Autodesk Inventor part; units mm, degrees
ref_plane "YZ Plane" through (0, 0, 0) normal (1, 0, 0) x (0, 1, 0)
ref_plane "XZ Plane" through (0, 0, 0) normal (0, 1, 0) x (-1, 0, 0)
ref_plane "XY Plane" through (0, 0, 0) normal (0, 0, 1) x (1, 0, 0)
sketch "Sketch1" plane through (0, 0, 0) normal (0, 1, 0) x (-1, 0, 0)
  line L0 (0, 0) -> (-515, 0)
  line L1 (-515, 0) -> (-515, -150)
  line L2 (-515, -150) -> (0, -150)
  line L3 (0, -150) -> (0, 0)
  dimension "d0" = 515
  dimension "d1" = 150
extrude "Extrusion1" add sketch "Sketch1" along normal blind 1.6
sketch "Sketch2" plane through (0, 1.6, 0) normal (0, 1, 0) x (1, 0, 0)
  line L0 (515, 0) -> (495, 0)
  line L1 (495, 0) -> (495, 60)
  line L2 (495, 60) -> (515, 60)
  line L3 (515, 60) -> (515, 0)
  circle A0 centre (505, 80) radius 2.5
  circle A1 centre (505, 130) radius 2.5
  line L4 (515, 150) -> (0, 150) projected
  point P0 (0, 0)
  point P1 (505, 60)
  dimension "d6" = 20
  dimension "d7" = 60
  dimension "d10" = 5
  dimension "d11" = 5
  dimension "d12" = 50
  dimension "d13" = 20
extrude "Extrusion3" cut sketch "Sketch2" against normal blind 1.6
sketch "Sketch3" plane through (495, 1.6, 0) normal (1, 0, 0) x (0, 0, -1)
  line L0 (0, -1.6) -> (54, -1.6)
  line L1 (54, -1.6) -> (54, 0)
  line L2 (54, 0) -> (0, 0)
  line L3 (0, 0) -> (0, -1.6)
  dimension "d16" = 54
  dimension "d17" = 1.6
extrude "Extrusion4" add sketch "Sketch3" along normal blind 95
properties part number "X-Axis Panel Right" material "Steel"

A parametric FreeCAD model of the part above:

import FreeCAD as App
import Part
import Sketcher

V = App.Vector
Q = App.Units.Quantity


def add_polygon(sketch, points):
    """Adds a closed chain of lines whose ends are joined by coincident constraints."""
    first, n = sketch.GeometryCount, len(points)
    for a, b in zip(points, points[1:] + points[:1]):
        sketch.addGeometry(Part.LineSegment(App.Vector(*a, 0), App.Vector(*b, 0)), False)
    for i in range(n):
        sketch.addConstraint(Sketcher.Constraint("Coincident", first + i, 2, first + (i + 1) % n, 1))

doc = App.newDocument("Part")
params = doc.addObject("Spreadsheet::Sheet", "Params")
for row, (alias, value) in enumerate([
    ("sketch1_width", "515 mm"),
    ("sketch1_height", "150 mm"),
    ("pad1_length", "1.6 mm"),
    ("sketch2_diameter", "5 mm"),
    ("sketch2_width", "20 mm"),
    ("sketch2_height", "60 mm"),
    ("pocket1_length", "1.6 mm"),
    ("sketch3_height", "54 mm"),
    ("sketch3_width", "1.6 mm"),
    ("pad2_length", "95 mm"),
], start=1):
    params.set(f"A{row}", alias)
    params.set(f"B{row}", "=" + value)
    params.setAlias(f"B{row}", alias)

body = doc.addObject("PartDesign::Body", "Body")

# Sketch on XZ plane
sketch1 = body.newObject("Sketcher::SketchObject", "Sketch")
sketch1.AttachmentSupport = (doc.getObject("XZ_Plane"), [""])
sketch1.MapMode = "FlatFace"
add_polygon(sketch1, [(0, -150), (0, 0), (515, 0), (515, -150)])  # lines 0-3
sketch1.addConstraint(Sketcher.Constraint("Vertical", 0))
sketch1.addConstraint(Sketcher.Constraint("Horizontal", 1))
sketch1.addConstraint(Sketcher.Constraint("Vertical", 2))
sketch1.addConstraint(Sketcher.Constraint("Horizontal", 3))
sketch1.addConstraint(Sketcher.Constraint("Coincident", 0, 2, -1, 1))
sketch1.addConstraint(Sketcher.Constraint("DistanceX", 1, 1, 1, 2, Q("515 mm")))
sketch1.addConstraint(Sketcher.Constraint("DistanceY", 0, 1, 0, 2, Q("150 mm")))
sketch1.setExpression("Constraints[9]", "Params.sketch1_width")
sketch1.setExpression("Constraints[10]", "Params.sketch1_height")
pad1 = body.newObject("PartDesign::Pad", "Pad")
pad1.Profile = sketch1
pad1.setExpression("Length", "Params.pad1_length")
pad1.Reversed = True

# Sketch on XZ plane
sketch2 = body.newObject("Sketcher::SketchObject", "Sketch001")
sketch2.AttachmentSupport = (doc.getObject("XZ_Plane"), [""])
sketch2.MapMode = "FlatFace"
sketch2.AttachmentOffset = App.Placement(V(0, 0, -1.6), App.Rotation())
add_polygon(sketch2, [(495, 0), (515, 0), (515, -60), (495, -60)])  # lines 0-3
sketch2.addGeometry(Part.Circle(V(505, -80, 0), V(0, 0, 1), 2.5), False)  # 4
sketch2.addGeometry(Part.Circle(V(505, -130, 0), V(0, 0, 1), 2.5), False)  # 5
sketch2.addConstraint(Sketcher.Constraint("Horizontal", 0))
sketch2.addConstraint(Sketcher.Constraint("Vertical", 1))
sketch2.addConstraint(Sketcher.Constraint("Horizontal", 2))
sketch2.addConstraint(Sketcher.Constraint("Vertical", 3))
sketch2.addConstraint(Sketcher.Constraint("Equal", 4, 5))
sketch2.addConstraint(Sketcher.Constraint("PointOnObject", 0, 2, -1))
sketch2.addConstraint(Sketcher.Constraint("Vertical", 4, 3, 5, 3))
sketch2.addConstraint(Sketcher.Constraint("Diameter", 4, Q("5 mm")))
sketch2.addConstraint(Sketcher.Constraint("DistanceX", 0, 1, 0, 2, Q("20 mm")))
sketch2.addConstraint(Sketcher.Constraint("DistanceY", 1, 2, 1, 1, Q("60 mm")))
sketch2.addConstraint(Sketcher.Constraint("DistanceY", 5, 3, 4, 3, Q("50 mm")))
sketch2.addConstraint(Sketcher.Constraint("DistanceY", 4, 3, 1, 2, Q("20 mm")))
sketch2.addConstraint(Sketcher.Constraint("DistanceX", -1, 1, 4, 3, Q("505 mm")))
sketch2.addConstraint(Sketcher.Constraint("DistanceX", -1, 1, 0, 2, Q("515 mm")))
sketch2.setExpression("Constraints[11]", "Params.sketch2_diameter")
sketch2.setExpression("Constraints[12]", "Params.sketch2_width")
sketch2.setExpression("Constraints[13]", "Params.sketch2_height")
pocket1 = body.newObject("PartDesign::Pocket", "Pocket")
pocket1.Profile = sketch2
pocket1.setExpression("Length", "Params.pocket1_length")
pocket1.Reversed = True

# Sketch on YZ plane
sketch3 = body.newObject("Sketcher::SketchObject", "Sketch002")
sketch3.AttachmentSupport = (doc.getObject("YZ_Plane"), [""])
sketch3.MapMode = "FlatFace"
sketch3.AttachmentOffset = App.Placement(V(0, 0, 495), App.Rotation())
add_polygon(sketch3, [(1.6, 0), (0, 0), (0, -54), (1.6, -54)])  # lines 0-3
sketch3.addConstraint(Sketcher.Constraint("Horizontal", 0))
sketch3.addConstraint(Sketcher.Constraint("Vertical", 1))
sketch3.addConstraint(Sketcher.Constraint("Horizontal", 2))
sketch3.addConstraint(Sketcher.Constraint("Vertical", 3))
sketch3.addConstraint(Sketcher.Constraint("Coincident", 0, 2, -1, 1))
sketch3.addConstraint(Sketcher.Constraint("DistanceY", 1, 2, 1, 1, Q("54 mm")))
sketch3.addConstraint(Sketcher.Constraint("DistanceX", 0, 2, 0, 1, Q("1.6 mm")))
sketch3.setExpression("Constraints[9]", "Params.sketch3_height")
sketch3.setExpression("Constraints[10]", "Params.sketch3_width")
pad2 = body.newObject("PartDesign::Pad", "Pad001")
pad2.Profile = sketch3
pad2.setExpression("Length", "Params.pad2_length")

doc.recompute()
